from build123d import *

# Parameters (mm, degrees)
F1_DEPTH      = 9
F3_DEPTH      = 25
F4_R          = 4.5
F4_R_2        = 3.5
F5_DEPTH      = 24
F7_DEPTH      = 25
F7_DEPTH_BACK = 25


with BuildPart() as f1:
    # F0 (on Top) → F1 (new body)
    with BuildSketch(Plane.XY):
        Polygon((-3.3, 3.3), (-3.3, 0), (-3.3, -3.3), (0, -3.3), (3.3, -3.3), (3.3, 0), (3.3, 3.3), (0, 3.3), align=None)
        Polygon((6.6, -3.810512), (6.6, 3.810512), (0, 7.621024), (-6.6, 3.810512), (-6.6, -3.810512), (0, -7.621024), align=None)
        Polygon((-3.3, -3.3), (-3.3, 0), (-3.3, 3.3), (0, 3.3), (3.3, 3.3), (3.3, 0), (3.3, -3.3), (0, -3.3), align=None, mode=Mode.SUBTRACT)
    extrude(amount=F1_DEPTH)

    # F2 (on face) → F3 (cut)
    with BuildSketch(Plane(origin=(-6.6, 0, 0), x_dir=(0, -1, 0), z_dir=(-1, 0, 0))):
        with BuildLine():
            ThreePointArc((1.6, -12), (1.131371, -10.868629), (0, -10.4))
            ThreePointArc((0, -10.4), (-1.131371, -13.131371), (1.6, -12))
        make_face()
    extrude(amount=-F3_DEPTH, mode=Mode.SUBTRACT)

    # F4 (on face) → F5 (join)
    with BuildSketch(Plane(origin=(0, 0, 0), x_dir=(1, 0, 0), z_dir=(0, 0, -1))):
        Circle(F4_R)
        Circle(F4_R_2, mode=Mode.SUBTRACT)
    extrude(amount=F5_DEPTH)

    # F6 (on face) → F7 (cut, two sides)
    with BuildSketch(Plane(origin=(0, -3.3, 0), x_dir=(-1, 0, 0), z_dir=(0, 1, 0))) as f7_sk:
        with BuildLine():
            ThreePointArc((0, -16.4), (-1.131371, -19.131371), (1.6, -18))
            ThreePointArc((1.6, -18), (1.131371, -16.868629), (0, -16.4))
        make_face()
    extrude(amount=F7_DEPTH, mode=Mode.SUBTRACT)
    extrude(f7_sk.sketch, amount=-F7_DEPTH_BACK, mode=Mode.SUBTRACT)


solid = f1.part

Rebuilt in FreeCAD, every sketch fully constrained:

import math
import FreeCAD as App
import Part
import Sketcher
Q = App.Units.Quantity


def add_polygon(sketch, points):
    """Adds a closed chain of lines whose ends are joined by coincident constraints."""
    first, n = sketch.GeometryCount, len(points)
    for a, b in zip(points, points[1:] + points[:1]):
        sketch.addGeometry(Part.LineSegment(App.Vector(*a, 0), App.Vector(*b, 0)), False)
    for i in range(n):
        sketch.addConstraint(Sketcher.Constraint("Coincident", first + i, 2, first + (i + 1) % n, 1))

doc = App.newDocument("Part")
body = doc.addObject("PartDesign::Body", "Body")

sketch1 = body.newObject("Sketcher::SketchObject", "Sketch")
sketch1.AttachmentSupport = (doc.getObject("XY_Plane"), [""])
sketch1.MapMode = "FlatFace"
add_polygon(sketch1, [(6.6, -3.810512), (6.6, 3.810512), (0, 7.621024), (-6.6, 3.810512), (-6.6, -3.810512), (0, -7.621024)])
add_polygon(sketch1, [(3.3, -3.3), (-3.3, -3.3), (-3.3, 3.3), (3.3, 3.3)])
sketch1.addConstraint(Sketcher.Constraint("Vertical", 0))
sketch1.addConstraint(Sketcher.Constraint("Vertical", 3))
sketch1.addConstraint(Sketcher.Constraint("Horizontal", 6))
sketch1.addConstraint(Sketcher.Constraint("Vertical", 7))
sketch1.addConstraint(Sketcher.Constraint("Horizontal", 8))
sketch1.addConstraint(Sketcher.Constraint("Vertical", 9))
sketch1.addConstraint(Sketcher.Constraint("Symmetric", 0, 2, 3, 2, -1, 1))
sketch1.addConstraint(Sketcher.Constraint("Symmetric", 1, 2, 4, 2, -1, 1))
sketch1.addConstraint(Sketcher.Constraint("Symmetric", 6, 2, 8, 2, -1, 1))
sketch1.addConstraint(Sketcher.Constraint("PointOnObject", 1, 2, -2))
sketch1.addConstraint(Sketcher.Constraint("Parallel", 2, 5))
sketch1.addConstraint(Sketcher.Constraint("Horizontal", 0, 2, 2, 2))
sketch1.addConstraint(Sketcher.Constraint("Equal", 8, 7))
sketch1.addConstraint(Sketcher.Constraint("Angle", 1, Q("149.999999 deg")))
sketch1.addConstraint(Sketcher.Constraint("DistanceX", 6, 2, 6, 1, 6.6))
sketch1.addConstraint(Sketcher.Constraint("DistanceX", -1, 1, 0, 2, 6.6))
sketch1.addConstraint(Sketcher.Constraint("DistanceY", 0, 1, 0, 2, 7.621024))
pad1 = body.newObject("PartDesign::Pad", "Pad")
pad1.Profile = sketch1
pad1.Length = 9

sketch2 = body.newObject("Sketcher::SketchObject", "Sketch001")
sketch2.AttachmentSupport = (doc.getObject("YZ_Plane"), [""])
sketch2.MapMode = "FlatFace"
sketch2.AttachmentOffset = App.Placement(App.Vector(0, 0, -6.6), App.Rotation())
sketch2.addGeometry(Part.ArcOfCircle(Part.Circle(App.Vector(-0.000001, -11.999999, 0), App.Vector(0, 0, 1), 1.599999), math.radians(89.999982), math.radians(180.000018)), False)
sketch2.addGeometry(Part.ArcOfCircle(Part.Circle(App.Vector(0, -12, 0), App.Vector(0, 0, 1), 1.6), math.radians(179.999997), math.radians(450.000003)), False)
sketch2.addConstraint(Sketcher.Constraint("Tangent", 0, 1, 1, 2))
sketch2.addConstraint(Sketcher.Constraint("Coincident", 1, 1, 0, 2))
sketch2.addConstraint(Sketcher.Constraint("PointOnObject", 0, 3, -2))
sketch2.addConstraint(Sketcher.Constraint("PointOnObject", 0, 1, -2))
sketch2.addConstraint(Sketcher.Constraint("Horizontal", 0, 3, 1, 1))
sketch2.addConstraint(Sketcher.Constraint("Radius", 0, 1.599999))
sketch2.addConstraint(Sketcher.Constraint("DistanceY", 0, 3, -1, 1, 11.999999))
pocket1 = body.newObject("PartDesign::Pocket", "Pocket")
pocket1.Profile = sketch2
pocket1.Length = 25
pocket1.Reversed = True

sketch3 = body.newObject("Sketcher::SketchObject", "Sketch002")
sketch3.AttachmentSupport = (doc.getObject("XY_Plane"), [""])
sketch3.MapMode = "FlatFace"
sketch3.addGeometry(Part.Circle(App.Vector(0, 0, 0), App.Vector(0, 0, 1), 4.5), False)
sketch3.addGeometry(Part.Circle(App.Vector(0, 0, 0), App.Vector(0, 0, 1), 3.5), False)
sketch3.addConstraint(Sketcher.Constraint("Coincident", 0, 3, -1, 1))
sketch3.addConstraint(Sketcher.Constraint("Coincident", 1, 3, -1, 1))
sketch3.addConstraint(Sketcher.Constraint("Diameter", 0, 9.0))
sketch3.addConstraint(Sketcher.Constraint("Diameter", 1, 7.0))
pad2 = body.newObject("PartDesign::Pad", "Pad001")
pad2.Profile = sketch3
pad2.Length = 24
pad2.Reversed = True

sketch4 = body.newObject("Sketcher::SketchObject", "Sketch003")
sketch4.AttachmentSupport = (doc.getObject("XZ_Plane"), [""])
sketch4.MapMode = "FlatFace"
sketch4.AttachmentOffset = App.Placement(App.Vector(0, 0, 3.3), App.Rotation())
sketch4.addGeometry(Part.ArcOfCircle(Part.Circle(App.Vector(0, -18, 0), App.Vector(0, 0, 1), 1.6), math.radians(179.999997), math.radians(450.000003)), False)
sketch4.addGeometry(Part.ArcOfCircle(Part.Circle(App.Vector(-0.000001, -17.999999, 0), App.Vector(0, 0, 1), 1.599999), math.radians(89.999982), math.radians(180.000018)), False)
sketch4.addConstraint(Sketcher.Constraint("Tangent", 0, 1, 1, 2))
sketch4.addConstraint(Sketcher.Constraint("Coincident", 1, 1, 0, 2))
sketch4.addConstraint(Sketcher.Constraint("PointOnObject", 0, 3, -2))
sketch4.addConstraint(Sketcher.Constraint("PointOnObject", 1, 1, -2))
sketch4.addConstraint(Sketcher.Constraint("Horizontal", 1, 3, 0, 1))
sketch4.addConstraint(Sketcher.Constraint("Radius", 0, 1.6))
sketch4.addConstraint(Sketcher.Constraint("DistanceY", 0, 3, -1, 1, 18.0))
pocket2 = body.newObject("PartDesign::Pocket", "Pocket001")
pocket2.Profile = sketch4
pocket2.Type = "ThroughAll"
pocket2.Midplane = True

doc.recompute()
